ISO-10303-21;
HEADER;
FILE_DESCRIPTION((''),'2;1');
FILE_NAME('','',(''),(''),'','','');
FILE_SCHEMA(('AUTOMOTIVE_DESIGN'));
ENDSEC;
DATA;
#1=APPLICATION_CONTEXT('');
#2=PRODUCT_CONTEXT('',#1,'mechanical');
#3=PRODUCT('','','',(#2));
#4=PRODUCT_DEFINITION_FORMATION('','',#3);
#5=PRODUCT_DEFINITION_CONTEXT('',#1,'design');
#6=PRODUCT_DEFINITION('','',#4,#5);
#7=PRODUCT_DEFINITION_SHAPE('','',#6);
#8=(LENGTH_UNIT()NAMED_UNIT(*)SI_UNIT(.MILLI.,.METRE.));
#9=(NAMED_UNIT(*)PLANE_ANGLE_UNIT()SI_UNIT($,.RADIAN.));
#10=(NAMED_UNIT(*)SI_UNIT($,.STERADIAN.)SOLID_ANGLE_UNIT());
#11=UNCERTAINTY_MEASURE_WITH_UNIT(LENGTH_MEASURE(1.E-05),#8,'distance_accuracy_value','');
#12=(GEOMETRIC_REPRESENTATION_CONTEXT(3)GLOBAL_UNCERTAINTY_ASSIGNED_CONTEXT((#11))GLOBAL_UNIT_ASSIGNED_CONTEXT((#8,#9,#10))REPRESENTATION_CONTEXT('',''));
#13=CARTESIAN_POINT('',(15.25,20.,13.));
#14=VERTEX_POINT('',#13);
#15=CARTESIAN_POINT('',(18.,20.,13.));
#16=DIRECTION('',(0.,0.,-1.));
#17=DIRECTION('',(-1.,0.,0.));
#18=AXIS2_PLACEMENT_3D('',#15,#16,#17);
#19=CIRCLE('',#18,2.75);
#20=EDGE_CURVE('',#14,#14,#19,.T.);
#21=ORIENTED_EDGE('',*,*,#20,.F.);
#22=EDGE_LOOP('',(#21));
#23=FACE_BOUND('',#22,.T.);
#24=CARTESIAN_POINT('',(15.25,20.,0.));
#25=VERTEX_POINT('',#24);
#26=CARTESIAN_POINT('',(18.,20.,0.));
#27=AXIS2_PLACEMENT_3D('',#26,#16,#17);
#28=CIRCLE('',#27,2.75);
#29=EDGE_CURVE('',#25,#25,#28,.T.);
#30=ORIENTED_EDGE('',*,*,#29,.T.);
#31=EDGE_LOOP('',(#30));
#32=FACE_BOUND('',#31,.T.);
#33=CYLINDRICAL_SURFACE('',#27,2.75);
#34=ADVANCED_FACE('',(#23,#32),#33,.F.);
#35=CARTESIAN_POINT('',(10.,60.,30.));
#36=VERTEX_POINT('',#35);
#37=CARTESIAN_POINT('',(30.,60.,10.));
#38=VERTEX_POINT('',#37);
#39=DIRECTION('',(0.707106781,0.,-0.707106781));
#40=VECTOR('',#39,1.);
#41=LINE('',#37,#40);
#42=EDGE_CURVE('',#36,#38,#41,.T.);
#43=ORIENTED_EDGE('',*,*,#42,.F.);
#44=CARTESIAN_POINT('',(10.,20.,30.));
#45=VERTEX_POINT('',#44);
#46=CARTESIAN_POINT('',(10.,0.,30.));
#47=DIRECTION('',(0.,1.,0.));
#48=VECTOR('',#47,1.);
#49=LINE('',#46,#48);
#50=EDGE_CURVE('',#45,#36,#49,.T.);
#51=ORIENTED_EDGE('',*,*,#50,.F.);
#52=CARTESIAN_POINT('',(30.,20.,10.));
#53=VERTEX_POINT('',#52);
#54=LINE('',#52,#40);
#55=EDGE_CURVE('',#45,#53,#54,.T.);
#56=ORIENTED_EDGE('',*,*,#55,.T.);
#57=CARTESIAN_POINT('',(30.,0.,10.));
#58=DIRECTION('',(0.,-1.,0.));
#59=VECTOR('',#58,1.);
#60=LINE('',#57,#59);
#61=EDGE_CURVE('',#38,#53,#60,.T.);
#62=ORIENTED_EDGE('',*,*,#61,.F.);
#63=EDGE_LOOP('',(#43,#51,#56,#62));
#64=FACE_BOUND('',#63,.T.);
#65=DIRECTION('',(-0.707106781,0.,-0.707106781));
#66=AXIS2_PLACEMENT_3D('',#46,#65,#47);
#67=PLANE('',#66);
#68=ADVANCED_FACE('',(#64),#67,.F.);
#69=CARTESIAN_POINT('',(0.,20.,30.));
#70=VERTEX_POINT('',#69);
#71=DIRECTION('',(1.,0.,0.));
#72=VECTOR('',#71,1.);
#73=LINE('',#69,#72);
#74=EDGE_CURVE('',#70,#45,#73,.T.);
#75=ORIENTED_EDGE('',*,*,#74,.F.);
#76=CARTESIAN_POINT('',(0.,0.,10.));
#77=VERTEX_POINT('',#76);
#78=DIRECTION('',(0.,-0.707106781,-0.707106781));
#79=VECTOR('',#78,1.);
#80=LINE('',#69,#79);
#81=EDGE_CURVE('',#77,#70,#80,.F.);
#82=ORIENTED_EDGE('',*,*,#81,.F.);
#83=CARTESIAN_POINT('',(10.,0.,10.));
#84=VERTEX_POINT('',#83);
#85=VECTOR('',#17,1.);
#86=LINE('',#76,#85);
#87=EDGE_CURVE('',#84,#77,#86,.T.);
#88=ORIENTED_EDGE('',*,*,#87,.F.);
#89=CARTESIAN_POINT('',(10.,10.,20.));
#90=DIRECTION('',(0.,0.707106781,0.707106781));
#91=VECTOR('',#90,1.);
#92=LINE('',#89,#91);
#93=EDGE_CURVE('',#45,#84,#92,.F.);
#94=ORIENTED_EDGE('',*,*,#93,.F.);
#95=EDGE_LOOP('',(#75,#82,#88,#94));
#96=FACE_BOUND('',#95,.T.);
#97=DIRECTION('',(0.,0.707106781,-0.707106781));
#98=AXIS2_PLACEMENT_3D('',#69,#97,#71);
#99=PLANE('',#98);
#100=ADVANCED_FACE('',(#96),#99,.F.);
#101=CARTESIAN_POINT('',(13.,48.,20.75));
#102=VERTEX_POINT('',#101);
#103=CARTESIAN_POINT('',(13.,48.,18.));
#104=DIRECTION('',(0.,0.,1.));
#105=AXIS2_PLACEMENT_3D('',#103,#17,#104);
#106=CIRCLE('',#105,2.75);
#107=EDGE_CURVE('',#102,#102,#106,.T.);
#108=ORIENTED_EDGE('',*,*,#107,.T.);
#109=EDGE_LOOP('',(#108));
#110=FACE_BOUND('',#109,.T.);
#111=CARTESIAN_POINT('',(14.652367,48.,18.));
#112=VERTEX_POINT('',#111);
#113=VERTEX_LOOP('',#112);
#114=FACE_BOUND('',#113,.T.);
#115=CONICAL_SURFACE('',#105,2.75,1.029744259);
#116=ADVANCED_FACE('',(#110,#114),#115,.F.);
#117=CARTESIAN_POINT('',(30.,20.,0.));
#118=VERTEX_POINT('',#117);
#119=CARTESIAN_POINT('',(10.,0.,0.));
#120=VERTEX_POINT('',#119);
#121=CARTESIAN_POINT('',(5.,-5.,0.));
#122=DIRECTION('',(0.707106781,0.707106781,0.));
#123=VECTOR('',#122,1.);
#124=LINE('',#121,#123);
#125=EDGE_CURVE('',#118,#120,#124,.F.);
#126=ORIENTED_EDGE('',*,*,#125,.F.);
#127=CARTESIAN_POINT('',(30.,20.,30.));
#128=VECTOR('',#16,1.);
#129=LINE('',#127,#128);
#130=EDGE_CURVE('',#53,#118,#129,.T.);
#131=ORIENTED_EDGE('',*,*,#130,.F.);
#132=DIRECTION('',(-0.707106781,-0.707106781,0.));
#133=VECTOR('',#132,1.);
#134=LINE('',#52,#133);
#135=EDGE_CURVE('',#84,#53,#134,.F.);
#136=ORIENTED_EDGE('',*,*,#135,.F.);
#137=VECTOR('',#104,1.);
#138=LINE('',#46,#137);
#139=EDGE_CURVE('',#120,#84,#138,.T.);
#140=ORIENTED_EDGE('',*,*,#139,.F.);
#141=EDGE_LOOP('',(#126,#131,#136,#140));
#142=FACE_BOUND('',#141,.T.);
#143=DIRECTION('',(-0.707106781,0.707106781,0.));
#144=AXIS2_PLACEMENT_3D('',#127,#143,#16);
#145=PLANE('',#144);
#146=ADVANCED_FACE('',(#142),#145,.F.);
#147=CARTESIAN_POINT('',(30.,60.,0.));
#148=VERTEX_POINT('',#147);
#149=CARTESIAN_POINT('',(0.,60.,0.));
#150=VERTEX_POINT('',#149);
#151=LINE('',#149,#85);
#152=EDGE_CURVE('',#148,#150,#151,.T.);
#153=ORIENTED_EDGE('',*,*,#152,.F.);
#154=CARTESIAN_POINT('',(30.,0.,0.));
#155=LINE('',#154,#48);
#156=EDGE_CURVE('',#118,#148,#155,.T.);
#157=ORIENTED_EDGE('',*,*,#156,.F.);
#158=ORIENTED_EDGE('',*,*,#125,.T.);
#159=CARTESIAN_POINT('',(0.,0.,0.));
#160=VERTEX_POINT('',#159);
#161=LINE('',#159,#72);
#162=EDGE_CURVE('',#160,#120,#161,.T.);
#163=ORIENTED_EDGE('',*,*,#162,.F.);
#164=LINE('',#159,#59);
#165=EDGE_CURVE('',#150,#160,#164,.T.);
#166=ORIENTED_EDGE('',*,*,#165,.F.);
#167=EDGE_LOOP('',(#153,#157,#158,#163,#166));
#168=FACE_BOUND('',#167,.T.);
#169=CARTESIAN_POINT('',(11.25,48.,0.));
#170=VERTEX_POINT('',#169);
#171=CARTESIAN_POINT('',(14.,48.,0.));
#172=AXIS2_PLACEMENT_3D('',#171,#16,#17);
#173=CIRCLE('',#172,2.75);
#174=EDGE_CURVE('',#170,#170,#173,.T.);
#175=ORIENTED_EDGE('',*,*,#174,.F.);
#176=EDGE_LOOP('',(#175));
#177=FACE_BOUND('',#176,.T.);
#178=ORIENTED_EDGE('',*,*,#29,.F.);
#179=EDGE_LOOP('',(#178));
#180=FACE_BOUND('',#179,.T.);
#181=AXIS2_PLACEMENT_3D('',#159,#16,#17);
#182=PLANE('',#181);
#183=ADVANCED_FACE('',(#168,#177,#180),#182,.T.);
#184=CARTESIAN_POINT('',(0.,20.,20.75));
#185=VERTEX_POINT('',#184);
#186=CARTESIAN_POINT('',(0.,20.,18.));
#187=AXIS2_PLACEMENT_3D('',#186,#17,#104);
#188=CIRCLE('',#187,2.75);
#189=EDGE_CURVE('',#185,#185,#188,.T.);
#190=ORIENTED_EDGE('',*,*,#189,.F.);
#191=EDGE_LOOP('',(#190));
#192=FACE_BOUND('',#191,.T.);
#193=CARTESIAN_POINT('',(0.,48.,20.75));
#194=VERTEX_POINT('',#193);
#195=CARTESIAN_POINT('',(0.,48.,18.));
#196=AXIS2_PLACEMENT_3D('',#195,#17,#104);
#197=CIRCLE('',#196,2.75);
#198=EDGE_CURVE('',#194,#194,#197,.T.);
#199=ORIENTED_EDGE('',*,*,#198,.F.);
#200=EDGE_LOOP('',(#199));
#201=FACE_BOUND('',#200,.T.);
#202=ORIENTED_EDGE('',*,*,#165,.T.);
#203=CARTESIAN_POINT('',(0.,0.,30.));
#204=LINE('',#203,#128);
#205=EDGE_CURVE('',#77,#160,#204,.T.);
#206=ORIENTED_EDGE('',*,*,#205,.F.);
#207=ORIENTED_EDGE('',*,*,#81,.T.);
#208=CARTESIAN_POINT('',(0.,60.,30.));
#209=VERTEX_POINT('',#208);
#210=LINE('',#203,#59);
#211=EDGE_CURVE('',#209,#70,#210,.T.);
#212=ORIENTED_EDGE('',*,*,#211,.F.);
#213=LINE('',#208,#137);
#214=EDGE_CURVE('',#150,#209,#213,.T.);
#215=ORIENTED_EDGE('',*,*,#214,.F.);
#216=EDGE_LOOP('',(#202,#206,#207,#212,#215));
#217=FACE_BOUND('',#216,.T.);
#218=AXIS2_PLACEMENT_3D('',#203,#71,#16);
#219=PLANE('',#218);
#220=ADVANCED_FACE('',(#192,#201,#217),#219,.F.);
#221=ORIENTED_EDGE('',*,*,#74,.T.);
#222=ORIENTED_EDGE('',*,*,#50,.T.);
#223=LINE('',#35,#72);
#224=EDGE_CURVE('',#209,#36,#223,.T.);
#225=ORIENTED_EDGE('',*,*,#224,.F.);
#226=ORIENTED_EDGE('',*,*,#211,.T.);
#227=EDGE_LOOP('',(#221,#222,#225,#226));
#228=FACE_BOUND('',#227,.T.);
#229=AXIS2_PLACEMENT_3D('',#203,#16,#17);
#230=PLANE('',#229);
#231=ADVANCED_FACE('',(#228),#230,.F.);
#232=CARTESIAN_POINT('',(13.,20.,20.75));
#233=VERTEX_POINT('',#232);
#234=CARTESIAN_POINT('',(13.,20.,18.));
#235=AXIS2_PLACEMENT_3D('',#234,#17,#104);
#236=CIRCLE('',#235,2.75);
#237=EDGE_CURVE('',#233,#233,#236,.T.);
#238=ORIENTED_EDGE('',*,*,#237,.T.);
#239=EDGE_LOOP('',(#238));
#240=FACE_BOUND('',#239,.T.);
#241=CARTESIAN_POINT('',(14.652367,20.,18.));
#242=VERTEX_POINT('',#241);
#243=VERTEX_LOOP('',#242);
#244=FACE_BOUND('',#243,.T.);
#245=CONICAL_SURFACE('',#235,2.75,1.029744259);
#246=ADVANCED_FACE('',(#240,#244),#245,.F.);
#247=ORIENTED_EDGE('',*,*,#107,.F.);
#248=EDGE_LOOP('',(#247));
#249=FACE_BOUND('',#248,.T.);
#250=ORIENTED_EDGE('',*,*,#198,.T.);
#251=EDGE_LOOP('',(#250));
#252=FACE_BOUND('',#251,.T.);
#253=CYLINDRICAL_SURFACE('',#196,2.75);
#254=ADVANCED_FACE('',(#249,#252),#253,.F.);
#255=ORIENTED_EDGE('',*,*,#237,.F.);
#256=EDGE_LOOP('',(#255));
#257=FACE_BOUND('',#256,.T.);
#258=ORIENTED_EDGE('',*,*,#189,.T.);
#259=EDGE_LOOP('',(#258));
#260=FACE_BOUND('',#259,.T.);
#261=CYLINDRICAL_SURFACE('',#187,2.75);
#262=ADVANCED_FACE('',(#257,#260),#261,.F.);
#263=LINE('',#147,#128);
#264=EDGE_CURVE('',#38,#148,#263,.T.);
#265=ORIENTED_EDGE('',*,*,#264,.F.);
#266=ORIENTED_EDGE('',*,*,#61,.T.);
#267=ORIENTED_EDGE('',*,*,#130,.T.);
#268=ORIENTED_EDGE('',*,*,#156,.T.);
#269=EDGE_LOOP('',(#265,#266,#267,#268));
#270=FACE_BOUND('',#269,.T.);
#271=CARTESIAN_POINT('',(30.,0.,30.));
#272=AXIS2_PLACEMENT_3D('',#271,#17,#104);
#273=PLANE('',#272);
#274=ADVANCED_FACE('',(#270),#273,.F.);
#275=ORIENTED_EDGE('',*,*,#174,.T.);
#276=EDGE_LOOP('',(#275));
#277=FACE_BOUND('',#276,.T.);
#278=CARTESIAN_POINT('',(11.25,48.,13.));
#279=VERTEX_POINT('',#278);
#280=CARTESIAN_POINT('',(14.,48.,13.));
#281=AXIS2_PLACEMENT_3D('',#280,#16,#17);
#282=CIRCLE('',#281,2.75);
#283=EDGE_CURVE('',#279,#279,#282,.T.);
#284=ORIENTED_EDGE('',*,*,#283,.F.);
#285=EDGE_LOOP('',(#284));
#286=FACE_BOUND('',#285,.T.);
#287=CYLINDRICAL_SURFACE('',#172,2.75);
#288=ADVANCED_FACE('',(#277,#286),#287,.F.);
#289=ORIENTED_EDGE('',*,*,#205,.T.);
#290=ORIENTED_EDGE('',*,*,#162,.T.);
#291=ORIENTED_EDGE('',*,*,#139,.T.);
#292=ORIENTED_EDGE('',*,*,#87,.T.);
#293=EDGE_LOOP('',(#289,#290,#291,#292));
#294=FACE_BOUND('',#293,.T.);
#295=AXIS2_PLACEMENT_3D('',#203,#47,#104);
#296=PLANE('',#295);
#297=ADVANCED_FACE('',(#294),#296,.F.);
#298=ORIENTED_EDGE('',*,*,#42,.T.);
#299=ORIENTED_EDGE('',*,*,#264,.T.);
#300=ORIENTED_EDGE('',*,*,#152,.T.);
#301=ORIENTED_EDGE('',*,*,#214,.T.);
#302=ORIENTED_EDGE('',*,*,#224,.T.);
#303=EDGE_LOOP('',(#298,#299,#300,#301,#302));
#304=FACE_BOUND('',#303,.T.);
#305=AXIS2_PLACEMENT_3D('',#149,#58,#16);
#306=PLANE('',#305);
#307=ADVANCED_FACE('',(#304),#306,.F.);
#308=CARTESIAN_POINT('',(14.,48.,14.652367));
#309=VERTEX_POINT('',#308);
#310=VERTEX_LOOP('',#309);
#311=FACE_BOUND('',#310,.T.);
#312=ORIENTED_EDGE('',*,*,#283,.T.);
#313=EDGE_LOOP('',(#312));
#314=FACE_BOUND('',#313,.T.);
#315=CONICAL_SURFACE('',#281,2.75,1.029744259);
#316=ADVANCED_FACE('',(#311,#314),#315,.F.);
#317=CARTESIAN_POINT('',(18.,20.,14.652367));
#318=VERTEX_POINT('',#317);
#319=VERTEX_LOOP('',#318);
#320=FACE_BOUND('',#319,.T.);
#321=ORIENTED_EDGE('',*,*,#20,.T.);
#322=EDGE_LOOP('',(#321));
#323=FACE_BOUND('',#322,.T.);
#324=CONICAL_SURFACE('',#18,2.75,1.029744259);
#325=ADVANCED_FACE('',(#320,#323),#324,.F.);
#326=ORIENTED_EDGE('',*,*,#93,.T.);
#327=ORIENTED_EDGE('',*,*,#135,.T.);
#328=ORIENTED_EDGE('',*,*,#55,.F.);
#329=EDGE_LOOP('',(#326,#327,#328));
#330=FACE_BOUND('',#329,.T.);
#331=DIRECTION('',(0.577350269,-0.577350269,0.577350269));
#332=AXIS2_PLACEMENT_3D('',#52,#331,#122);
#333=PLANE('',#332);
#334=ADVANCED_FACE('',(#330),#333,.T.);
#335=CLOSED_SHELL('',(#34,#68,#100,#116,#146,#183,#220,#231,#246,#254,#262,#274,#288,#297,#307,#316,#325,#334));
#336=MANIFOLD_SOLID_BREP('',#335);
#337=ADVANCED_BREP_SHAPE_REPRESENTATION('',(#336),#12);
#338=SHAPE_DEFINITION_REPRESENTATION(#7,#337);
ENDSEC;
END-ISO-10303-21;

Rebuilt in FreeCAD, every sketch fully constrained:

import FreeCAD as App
import Part
import Sketcher

V = App.Vector
Q = App.Units.Quantity


def edges_at(feature, points):
    """Names of the edges that pass closest to the given points."""
    edges = feature.Shape.Edges
    near = lambda p: min(range(len(edges)), key=lambda i: edges[i].distToShape(Part.Vertex(*p))[0])
    return sorted({f"Edge{near(p) + 1}" for p in points})

doc = App.newDocument("Part")
params = doc.addObject("Spreadsheet::Sheet", "Params")
for row, (alias, value) in enumerate([
    ("sketch1_width", "30 mm"),
    ("sketch1_height", "40 mm"),
    ("pad1_length", "30 mm"),
    ("chamfer_size", "20 mm"),
    ("sketch2_width", "30 mm"),
    ("sketch2_width2", "10 mm"),
    ("pad2_length", "20 mm"),
    ("sketch3_diameter", "5.5 mm"),
    ("hole_diameter", "5.5 mm"),
    ("hole_depth", "13 mm"),
    ("sketch4_diameter", "5.5 mm"),
    ("hole2_diameter", "5.5 mm"),
    ("hole2_depth", "13 mm"),
], start=1):
    params.set(f"A{row}", alias)
    params.set(f"B{row}", "=" + value)
    params.setAlias(f"B{row}", alias)

body = doc.addObject("PartDesign::Body", "Body")

# Sketch on XY plane
sketch1 = body.newObject("Sketcher::SketchObject", "Sketch")
sketch1.AttachmentSupport = (doc.getObject("XY_Plane"), [""])
sketch1.MapMode = "FlatFace"
sketch1.addGeometry(Part.LineSegment(V(0, 40, 0), V(0, 0, 0)), False)
sketch1.addGeometry(Part.LineSegment(V(0, 0, 0), V(30, 0, 0)), False)
sketch1.addGeometry(Part.LineSegment(V(30, 0, 0), V(30, 40, 0)), False)
sketch1.addGeometry(Part.LineSegment(V(30, 40, 0), V(0, 40, 0)), False)
sketch1.addConstraint(Sketcher.Constraint("Coincident", 0, 2, 1, 1))
sketch1.addConstraint(Sketcher.Constraint("Coincident", 1, 2, 2, 1))
sketch1.addConstraint(Sketcher.Constraint("Coincident", 2, 2, 3, 1))
sketch1.addConstraint(Sketcher.Constraint("Coincident", 3, 2, 0, 1))
sketch1.addConstraint(Sketcher.Constraint("Vertical", 0))
sketch1.addConstraint(Sketcher.Constraint("Horizontal", 1))
sketch1.addConstraint(Sketcher.Constraint("Vertical", 2))
sketch1.addConstraint(Sketcher.Constraint("Horizontal", 3))
sketch1.addConstraint(Sketcher.Constraint("Coincident", 0, 2, -1, 1))
sketch1.addConstraint(Sketcher.Constraint("DistanceX", 1, 1, 1, 2, Q("30 mm")))
sketch1.addConstraint(Sketcher.Constraint("DistanceY", 0, 2, 0, 1, Q("40 mm")))
sketch1.setExpression("Constraints[9]", "Params.sketch1_width")
sketch1.setExpression("Constraints[10]", "Params.sketch1_height")
pad1 = body.newObject("PartDesign::Pad", "Pad")
pad1.Profile = sketch1
pad1.setExpression("Length", "Params.pad1_length")
doc.recompute()

chamfer = body.newObject("PartDesign::Chamfer", "Chamfer")
chamfer.Base = (pad1, edges_at(pad1, [(30, 20, 30), (30, 0, 15), (15, 0, 30)]))
chamfer.setExpression("Size", "Params.chamfer_size")

# Sketch on XZ plane
sketch2 = body.newObject("Sketcher::SketchObject", "Sketch001")
sketch2.AttachmentSupport = (doc.getObject("XZ_Plane"), [""])
sketch2.MapMode = "FlatFace"
sketch2.AttachmentOffset = App.Placement(V(0, 0, -40), App.Rotation())
sketch2.addGeometry(Part.LineSegment(V(30, 0, 0), V(0, 0, 0)), False)
sketch2.addGeometry(Part.LineSegment(V(0, 0, 0), V(0, 30, 0)), False)
sketch2.addGeometry(Part.LineSegment(V(0, 30, 0), V(10, 30, 0)), False)
sketch2.addGeometry(Part.LineSegment(V(10, 30, 0), V(30, 10, 0)), False)
sketch2.addGeometry(Part.LineSegment(V(30, 10, 0), V(30, 0, 0)), False)
sketch2.addConstraint(Sketcher.Constraint("Coincident", 0, 2, 1, 1))
sketch2.addConstraint(Sketcher.Constraint("Coincident", 1, 2, 2, 1))
sketch2.addConstraint(Sketcher.Constraint("Coincident", 2, 2, 3, 1))
sketch2.addConstraint(Sketcher.Constraint("Coincident", 3, 2, 4, 1))
sketch2.addConstraint(Sketcher.Constraint("Coincident", 4, 2, 0, 1))
sketch2.addConstraint(Sketcher.Constraint("Horizontal", 0))
sketch2.addConstraint(Sketcher.Constraint("Vertical", 1))
sketch2.addConstraint(Sketcher.Constraint("Horizontal", 2))
sketch2.addConstraint(Sketcher.Constraint("Vertical", 4))
sketch2.addConstraint(Sketcher.Constraint("Coincident", 0, 2, -1, 1))
sketch2.addConstraint(Sketcher.Constraint("Equal", 0, 1))
sketch2.addConstraint(Sketcher.Constraint("Equal", 2, 4))
sketch2.addConstraint(Sketcher.Constraint("DistanceX", 0, 2, 0, 1, Q("30 mm")))
sketch2.addConstraint(Sketcher.Constraint("DistanceX", 2, 1, 2, 2, Q("10 mm")))
sketch2.setExpression("Constraints[12]", "Params.sketch2_width")
sketch2.setExpression("Constraints[13]", "Params.sketch2_width2")
pad2 = body.newObject("PartDesign::Pad", "Pad001")
pad2.Profile = sketch2
pad2.setExpression("Length", "Params.pad2_length")
pad2.Reversed = True

# Sketch on YZ plane
sketch3 = body.newObject("Sketcher::SketchObject", "Sketch002")
sketch3.AttachmentSupport = (doc.getObject("YZ_Plane"), [""])
sketch3.MapMode = "FlatFace"
sketch3.addGeometry(Part.Circle(V(20, 18, 0), V(0, 0, 1), 2.8), False)
sketch3.addGeometry(Part.Circle(V(48, 18, 0), V(0, 0, 1), 2.8), False)
sketch3.addConstraint(Sketcher.Constraint("Equal", 0, 1))
sketch3.addConstraint(Sketcher.Constraint("Horizontal", 0, 3, 1, 3))
sketch3.addConstraint(Sketcher.Constraint("Diameter", 0, Q("5.5 mm")))
sketch3.addConstraint(Sketcher.Constraint("DistanceX", -1, 1, 0, 3, Q("20 mm")))
sketch3.addConstraint(Sketcher.Constraint("DistanceY", -1, 1, 0, 3, Q("18 mm")))
sketch3.addConstraint(Sketcher.Constraint("DistanceX", -1, 1, 1, 3, Q("48 mm")))
sketch3.setExpression("Constraints[2]", "Params.sketch3_diameter")
doc.recompute()
hole = body.newObject("PartDesign::Hole", "Hole")
hole.Profile = sketch3
hole.ThreadType = "None"
hole.setExpression("Diameter", "Params.hole_diameter")
hole.DepthType = "Dimension"
hole.setExpression("Depth", "Params.hole_depth")
hole.DrillPoint = "Angled"
hole.DrillPointAngle = 118
hole.Reversed = True

# Sketch on XY plane
sketch4 = body.newObject("Sketcher::SketchObject", "Sketch003")
sketch4.AttachmentSupport = (doc.getObject("XY_Plane"), [""])
sketch4.MapMode = "FlatFace"
sketch4.addGeometry(Part.Circle(V(18, 20, 0), V(0, 0, 1), 2.8), False)
sketch4.addGeometry(Part.Circle(V(14, 48, 0), V(0, 0, 1), 2.8), False)
sketch4.addConstraint(Sketcher.Constraint("Equal", 0, 1))
sketch4.addConstraint(Sketcher.Constraint("Diameter", 0, Q("5.5 mm")))
sketch4.addConstraint(Sketcher.Constraint("DistanceX", -1, 1, 0, 3, Q("18 mm")))
sketch4.addConstraint(Sketcher.Constraint("DistanceY", -1, 1, 0, 3, Q("20 mm")))
sketch4.addConstraint(Sketcher.Constraint("DistanceX", -1, 1, 1, 3, Q("14 mm")))
sketch4.addConstraint(Sketcher.Constraint("DistanceY", -1, 1, 1, 3, Q("48 mm")))
sketch4.setExpression("Constraints[1]", "Params.sketch4_diameter")
doc.recompute()
hole2 = body.newObject("PartDesign::Hole", "Hole001")
hole2.Profile = sketch4
hole2.ThreadType = "None"
hole2.setExpression("Diameter", "Params.hole2_diameter")
hole2.DepthType = "Dimension"
hole2.setExpression("Depth", "Params.hole2_depth")
hole2.DrillPoint = "Angled"
hole2.DrillPointAngle = 118
hole2.Reversed = True

doc.recompute()
